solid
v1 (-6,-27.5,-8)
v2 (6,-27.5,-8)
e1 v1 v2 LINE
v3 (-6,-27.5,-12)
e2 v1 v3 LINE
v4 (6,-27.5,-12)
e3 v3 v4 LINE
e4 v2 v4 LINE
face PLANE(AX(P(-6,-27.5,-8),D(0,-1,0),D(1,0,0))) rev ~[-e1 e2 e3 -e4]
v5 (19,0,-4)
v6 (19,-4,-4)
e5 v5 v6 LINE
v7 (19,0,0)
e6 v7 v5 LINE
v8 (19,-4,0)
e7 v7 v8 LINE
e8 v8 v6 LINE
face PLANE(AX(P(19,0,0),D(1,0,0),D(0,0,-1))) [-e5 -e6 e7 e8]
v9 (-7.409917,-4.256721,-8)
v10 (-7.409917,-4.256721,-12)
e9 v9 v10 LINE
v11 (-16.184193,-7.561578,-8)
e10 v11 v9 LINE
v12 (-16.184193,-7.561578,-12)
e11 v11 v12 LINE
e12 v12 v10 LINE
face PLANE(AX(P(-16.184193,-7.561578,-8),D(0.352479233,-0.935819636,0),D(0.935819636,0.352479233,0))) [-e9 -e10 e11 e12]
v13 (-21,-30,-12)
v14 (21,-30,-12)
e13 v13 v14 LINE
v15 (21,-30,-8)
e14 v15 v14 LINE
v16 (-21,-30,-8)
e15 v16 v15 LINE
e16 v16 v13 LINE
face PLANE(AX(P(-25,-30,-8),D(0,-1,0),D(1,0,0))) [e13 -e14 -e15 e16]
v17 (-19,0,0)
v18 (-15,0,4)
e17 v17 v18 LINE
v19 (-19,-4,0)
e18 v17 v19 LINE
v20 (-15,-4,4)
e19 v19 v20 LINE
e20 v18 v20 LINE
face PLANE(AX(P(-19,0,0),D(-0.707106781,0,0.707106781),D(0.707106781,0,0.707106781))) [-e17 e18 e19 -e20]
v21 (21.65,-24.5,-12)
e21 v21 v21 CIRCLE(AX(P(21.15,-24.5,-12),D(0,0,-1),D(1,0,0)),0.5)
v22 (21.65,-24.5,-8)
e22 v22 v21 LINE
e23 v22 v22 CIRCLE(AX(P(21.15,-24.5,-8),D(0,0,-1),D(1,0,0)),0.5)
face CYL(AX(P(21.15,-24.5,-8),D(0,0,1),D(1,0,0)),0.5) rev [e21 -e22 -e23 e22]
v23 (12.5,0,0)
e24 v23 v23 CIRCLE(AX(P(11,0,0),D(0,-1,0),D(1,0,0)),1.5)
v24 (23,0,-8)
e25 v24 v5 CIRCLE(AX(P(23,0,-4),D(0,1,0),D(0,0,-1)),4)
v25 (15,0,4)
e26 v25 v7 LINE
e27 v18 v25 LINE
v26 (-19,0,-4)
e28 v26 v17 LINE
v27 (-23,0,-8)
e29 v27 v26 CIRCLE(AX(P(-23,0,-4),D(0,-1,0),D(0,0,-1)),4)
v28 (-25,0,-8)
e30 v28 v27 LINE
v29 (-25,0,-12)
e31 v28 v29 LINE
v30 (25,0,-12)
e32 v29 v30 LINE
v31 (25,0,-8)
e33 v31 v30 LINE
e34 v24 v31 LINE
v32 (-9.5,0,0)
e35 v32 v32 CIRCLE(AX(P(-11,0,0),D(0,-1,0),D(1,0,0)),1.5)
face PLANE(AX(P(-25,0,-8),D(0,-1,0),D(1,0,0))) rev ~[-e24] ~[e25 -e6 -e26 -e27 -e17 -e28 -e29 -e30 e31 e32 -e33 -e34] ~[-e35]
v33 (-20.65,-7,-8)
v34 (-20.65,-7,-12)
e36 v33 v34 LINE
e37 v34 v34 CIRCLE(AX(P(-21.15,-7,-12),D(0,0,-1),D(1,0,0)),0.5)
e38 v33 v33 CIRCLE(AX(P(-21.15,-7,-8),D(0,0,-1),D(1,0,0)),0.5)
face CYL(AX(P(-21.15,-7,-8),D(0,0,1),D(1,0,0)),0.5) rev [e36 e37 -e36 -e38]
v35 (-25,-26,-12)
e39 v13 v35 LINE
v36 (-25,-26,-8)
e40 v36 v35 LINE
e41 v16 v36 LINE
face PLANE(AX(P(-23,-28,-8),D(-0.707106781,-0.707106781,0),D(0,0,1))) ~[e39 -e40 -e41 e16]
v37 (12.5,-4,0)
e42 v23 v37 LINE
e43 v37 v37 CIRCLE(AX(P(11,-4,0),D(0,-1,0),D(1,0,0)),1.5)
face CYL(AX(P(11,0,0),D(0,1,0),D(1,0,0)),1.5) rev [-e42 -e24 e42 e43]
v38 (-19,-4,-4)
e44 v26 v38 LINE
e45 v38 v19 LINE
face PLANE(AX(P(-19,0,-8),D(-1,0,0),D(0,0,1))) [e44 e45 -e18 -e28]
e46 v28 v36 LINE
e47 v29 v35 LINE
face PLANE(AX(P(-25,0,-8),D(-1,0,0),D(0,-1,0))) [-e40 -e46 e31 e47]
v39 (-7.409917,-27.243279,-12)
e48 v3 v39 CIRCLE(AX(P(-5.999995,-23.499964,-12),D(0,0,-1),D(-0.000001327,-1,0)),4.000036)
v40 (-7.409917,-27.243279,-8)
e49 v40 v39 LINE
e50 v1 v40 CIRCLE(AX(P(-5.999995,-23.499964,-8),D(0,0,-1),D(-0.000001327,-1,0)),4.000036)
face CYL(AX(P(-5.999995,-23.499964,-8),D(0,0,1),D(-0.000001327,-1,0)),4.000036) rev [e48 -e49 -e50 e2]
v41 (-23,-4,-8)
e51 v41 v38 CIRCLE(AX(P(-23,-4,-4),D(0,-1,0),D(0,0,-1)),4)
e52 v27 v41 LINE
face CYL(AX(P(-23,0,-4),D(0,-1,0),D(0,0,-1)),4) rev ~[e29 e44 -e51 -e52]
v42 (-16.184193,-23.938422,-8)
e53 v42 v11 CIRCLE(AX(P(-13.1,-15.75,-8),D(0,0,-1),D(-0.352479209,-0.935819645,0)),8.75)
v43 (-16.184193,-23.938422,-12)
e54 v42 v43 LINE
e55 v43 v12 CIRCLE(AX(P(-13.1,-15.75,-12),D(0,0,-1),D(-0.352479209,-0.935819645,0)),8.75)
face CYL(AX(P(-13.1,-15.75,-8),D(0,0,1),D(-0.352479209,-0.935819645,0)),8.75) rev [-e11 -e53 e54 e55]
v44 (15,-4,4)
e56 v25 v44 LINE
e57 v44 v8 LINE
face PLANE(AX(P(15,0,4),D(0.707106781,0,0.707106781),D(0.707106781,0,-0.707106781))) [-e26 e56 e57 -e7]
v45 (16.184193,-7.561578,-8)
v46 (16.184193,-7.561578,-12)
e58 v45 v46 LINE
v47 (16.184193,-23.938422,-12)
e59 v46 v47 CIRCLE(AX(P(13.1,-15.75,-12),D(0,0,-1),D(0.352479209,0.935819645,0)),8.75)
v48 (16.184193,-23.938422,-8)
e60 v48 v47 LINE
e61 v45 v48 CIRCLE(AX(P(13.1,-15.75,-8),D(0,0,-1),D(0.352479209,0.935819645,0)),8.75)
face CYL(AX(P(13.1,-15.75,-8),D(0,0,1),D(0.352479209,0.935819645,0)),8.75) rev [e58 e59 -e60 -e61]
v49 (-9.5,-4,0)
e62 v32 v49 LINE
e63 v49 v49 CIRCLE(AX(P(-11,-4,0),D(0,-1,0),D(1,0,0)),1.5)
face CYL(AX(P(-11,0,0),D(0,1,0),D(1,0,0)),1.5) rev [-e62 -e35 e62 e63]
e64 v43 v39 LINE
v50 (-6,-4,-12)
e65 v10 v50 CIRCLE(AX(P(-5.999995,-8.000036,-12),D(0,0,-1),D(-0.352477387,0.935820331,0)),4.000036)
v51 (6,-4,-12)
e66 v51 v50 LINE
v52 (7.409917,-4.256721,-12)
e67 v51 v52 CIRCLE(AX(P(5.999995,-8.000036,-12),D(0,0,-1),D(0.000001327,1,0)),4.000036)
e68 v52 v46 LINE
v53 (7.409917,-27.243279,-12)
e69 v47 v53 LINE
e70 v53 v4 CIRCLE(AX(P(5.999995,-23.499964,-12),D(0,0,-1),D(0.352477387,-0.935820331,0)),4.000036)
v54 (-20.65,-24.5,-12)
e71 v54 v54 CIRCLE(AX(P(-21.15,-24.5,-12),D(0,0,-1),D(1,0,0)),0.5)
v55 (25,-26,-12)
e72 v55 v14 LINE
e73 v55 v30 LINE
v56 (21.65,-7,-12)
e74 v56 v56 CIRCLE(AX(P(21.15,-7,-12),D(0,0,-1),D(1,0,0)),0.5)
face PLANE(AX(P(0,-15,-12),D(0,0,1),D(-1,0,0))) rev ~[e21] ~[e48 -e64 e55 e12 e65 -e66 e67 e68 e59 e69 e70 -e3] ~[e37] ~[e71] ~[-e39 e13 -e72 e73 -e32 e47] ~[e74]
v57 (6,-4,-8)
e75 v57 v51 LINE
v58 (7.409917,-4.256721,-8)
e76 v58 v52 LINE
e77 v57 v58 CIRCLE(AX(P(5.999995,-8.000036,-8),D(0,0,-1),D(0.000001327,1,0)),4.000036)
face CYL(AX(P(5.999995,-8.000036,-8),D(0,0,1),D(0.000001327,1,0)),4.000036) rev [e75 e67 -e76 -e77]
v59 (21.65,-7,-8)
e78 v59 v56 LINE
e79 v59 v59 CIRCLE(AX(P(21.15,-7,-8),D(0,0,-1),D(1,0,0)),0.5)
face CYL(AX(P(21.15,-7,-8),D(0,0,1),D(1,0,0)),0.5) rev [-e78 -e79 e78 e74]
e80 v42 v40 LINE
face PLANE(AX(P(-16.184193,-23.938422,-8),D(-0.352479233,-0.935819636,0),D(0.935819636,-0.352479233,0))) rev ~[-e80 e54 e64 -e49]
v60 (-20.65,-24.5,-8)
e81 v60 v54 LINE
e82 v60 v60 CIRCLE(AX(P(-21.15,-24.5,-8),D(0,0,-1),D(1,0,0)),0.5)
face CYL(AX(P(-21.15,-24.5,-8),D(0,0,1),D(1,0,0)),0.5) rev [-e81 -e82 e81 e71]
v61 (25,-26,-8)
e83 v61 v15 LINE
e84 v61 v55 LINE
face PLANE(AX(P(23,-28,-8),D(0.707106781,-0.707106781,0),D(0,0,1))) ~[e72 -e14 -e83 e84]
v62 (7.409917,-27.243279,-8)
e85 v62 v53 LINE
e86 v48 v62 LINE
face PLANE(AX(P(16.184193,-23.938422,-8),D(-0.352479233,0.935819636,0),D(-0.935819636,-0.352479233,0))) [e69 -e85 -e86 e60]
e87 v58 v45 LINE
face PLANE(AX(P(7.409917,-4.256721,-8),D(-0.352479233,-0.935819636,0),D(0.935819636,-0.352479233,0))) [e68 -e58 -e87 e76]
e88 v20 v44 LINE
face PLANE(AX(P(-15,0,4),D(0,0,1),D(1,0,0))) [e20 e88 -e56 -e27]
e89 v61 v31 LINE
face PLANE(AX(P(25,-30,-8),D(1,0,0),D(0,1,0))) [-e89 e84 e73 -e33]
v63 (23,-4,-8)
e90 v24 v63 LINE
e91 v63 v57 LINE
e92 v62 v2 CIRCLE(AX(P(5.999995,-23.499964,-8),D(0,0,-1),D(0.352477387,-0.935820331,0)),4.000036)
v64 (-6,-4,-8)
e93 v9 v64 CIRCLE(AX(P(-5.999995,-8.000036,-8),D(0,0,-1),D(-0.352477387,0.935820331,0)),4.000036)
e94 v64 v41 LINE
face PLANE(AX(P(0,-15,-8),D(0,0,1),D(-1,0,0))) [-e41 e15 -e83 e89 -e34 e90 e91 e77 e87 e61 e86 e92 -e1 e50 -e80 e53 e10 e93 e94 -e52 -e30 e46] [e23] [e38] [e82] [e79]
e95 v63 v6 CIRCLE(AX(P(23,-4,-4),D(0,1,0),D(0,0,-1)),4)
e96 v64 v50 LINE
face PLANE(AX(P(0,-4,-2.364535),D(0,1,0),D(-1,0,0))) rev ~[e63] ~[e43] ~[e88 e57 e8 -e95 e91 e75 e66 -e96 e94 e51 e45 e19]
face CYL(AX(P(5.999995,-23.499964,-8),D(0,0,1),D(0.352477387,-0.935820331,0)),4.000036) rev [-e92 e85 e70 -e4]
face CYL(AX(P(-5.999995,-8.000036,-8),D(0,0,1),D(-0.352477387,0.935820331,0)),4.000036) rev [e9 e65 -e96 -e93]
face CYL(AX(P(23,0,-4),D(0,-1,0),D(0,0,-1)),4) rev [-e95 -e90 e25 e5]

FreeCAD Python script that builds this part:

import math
import FreeCAD as App
import Part
import Sketcher
Q = App.Units.Quantity


def edges_at(feature, points):
    """Names of the edges that pass closest to the given points."""
    edges = feature.Shape.Edges
    near = lambda p: min(range(len(edges)), key=lambda i: edges[i].distToShape(Part.Vertex(*p))[0])
    return sorted({f"Edge{near(p) + 1}" for p in points})

doc = App.newDocument("Part")
params = doc.addObject("Spreadsheet::Sheet", "Params")
for row, (alias, value) in enumerate([
    ("sketch1_diameter", "3 mm"),
    ("sketch1_width", "30 mm"),
    ("sketch1_width2", "38 mm"),
    ("sketch1_height", "8 mm"),
    ("pad1_length", "4 mm"),
    ("sketch2_diameter", "1 mm"),
    ("sketch2_width", "50 mm"),
    ("sketch2_width2", "12 mm"),
    ("sketch2_height", "30 mm"),
    ("sketch2_radius", "8.75 mm"),
    ("pad2_length", "4 mm"),
    ("fillet_radius", "4 mm"),
    ("chamfer_size", "4 mm"),
], start=1):
    params.set(f"A{row}", alias)
    params.set(f"B{row}", "=" + value)
    params.setAlias(f"B{row}", alias)

body = doc.addObject("PartDesign::Body", "Body")

# Sketch on XY plane
sketch1 = body.newObject("Sketcher::SketchObject", "Sketch")
sketch1.AttachmentSupport = (doc.getObject("XY_Plane"), [""])
sketch1.MapMode = "FlatFace"
sketch1.addGeometry(Part.LineSegment(App.Vector(15, 4, 0), App.Vector(-15, 4, 0)), False)
sketch1.addGeometry(Part.LineSegment(App.Vector(-15, 4, 0), App.Vector(-19, 0, 0)), False)
sketch1.addGeometry(Part.LineSegment(App.Vector(-19, 0, 0), App.Vector(-19, -8, 0)), False)
sketch1.addGeometry(Part.LineSegment(App.Vector(-19, -8, 0), App.Vector(19, -8, 0)), False)
sketch1.addGeometry(Part.LineSegment(App.Vector(19, -8, 0), App.Vector(19, 0, 0)), False)
sketch1.addGeometry(Part.LineSegment(App.Vector(19, 0, 0), App.Vector(15, 4, 0)), False)
sketch1.addGeometry(Part.Circle(App.Vector(11, 0, 0), App.Vector(0, 0, 1), 1.5), False)
sketch1.addGeometry(Part.Circle(App.Vector(-11, 0, 0), App.Vector(0, 0, 1), 1.5), False)
sketch1.addConstraint(Sketcher.Constraint("Coincident", 0, 2, 1, 1))
sketch1.addConstraint(Sketcher.Constraint("Coincident", 1, 2, 2, 1))
sketch1.addConstraint(Sketcher.Constraint("Coincident", 2, 2, 3, 1))
sketch1.addConstraint(Sketcher.Constraint("Coincident", 3, 2, 4, 1))
sketch1.addConstraint(Sketcher.Constraint("Coincident", 4, 2, 5, 1))
sketch1.addConstraint(Sketcher.Constraint("Coincident", 5, 2, 0, 1))
sketch1.addConstraint(Sketcher.Constraint("Horizontal", 0))
sketch1.addConstraint(Sketcher.Constraint("Vertical", 2))
sketch1.addConstraint(Sketcher.Constraint("Horizontal", 3))
sketch1.addConstraint(Sketcher.Constraint("Vertical", 4))
sketch1.addConstraint(Sketcher.Constraint("Equal", 6, 7))
sketch1.addConstraint(Sketcher.Constraint("Symmetric", 6, 3, 7, 3, -1, 1))
sketch1.addConstraint(Sketcher.Constraint("Symmetric", 1, 2, 4, 2, -1, 1))
sketch1.addConstraint(Sketcher.Constraint("PointOnObject", 6, 3, -1))
sketch1.addConstraint(Sketcher.Constraint("PointOnObject", 1, 2, -1))
sketch1.addConstraint(Sketcher.Constraint("Perpendicular", 1, 5))
sketch1.addConstraint(Sketcher.Constraint("Equal", 1, 5))
sketch1.addConstraint(Sketcher.Constraint("Diameter", 6, Q("3 mm")))
sketch1.addConstraint(Sketcher.Constraint("DistanceX", 0, 2, 0, 1, Q("30 mm")))
sketch1.addConstraint(Sketcher.Constraint("DistanceX", 3, 1, 3, 2, Q("38 mm")))
sketch1.addConstraint(Sketcher.Constraint("DistanceY", 2, 2, 2, 1, Q("8 mm")))
sketch1.addConstraint(Sketcher.Constraint("DistanceX", -1, 1, 6, 3, Q("11 mm")))
sketch1.setExpression("Constraints[17]", "Params.sketch1_diameter")
sketch1.setExpression("Constraints[18]", "Params.sketch1_width")
sketch1.setExpression("Constraints[19]", "Params.sketch1_width2")
sketch1.setExpression("Constraints[20]", "Params.sketch1_height")
pad1 = body.newObject("PartDesign::Pad", "Pad")
pad1.Profile = sketch1
pad1.setExpression("Length", "Params.pad1_length")

# Sketch on XZ plane
sketch2 = body.newObject("Sketcher::SketchObject", "Sketch001")
sketch2.AttachmentSupport = (doc.getObject("XZ_Plane"), [""])
sketch2.MapMode = "FlatFace"
sketch2.AttachmentOffset = App.Placement(App.Vector(0, 0, 8), App.Rotation())
sketch2.addGeometry(Part.LineSegment(App.Vector(25, 30, 0), App.Vector(-25, 30, 0)), False)
sketch2.addGeometry(Part.LineSegment(App.Vector(-25, 30, 0), App.Vector(-25, 0, 0)), False)
sketch2.addGeometry(Part.LineSegment(App.Vector(-25, 0, 0), App.Vector(25, 0, 0)), False)
sketch2.addGeometry(Part.LineSegment(App.Vector(25, 0, 0), App.Vector(25, 30, 0)), False)
sketch2.addGeometry(Part.Circle(App.Vector(21.15, 7, 0), App.Vector(0, 0, 1), 0.5), False)
sketch2.addGeometry(Part.Circle(App.Vector(-21.15, 7, 0), App.Vector(0, 0, 1), 0.5), False)
sketch2.addGeometry(Part.Circle(App.Vector(21.15, 24.5, 0), App.Vector(0, 0, 1), 0.5), False)
sketch2.addGeometry(Part.LineSegment(App.Vector(-16.184193, 23.938422, 0), App.Vector(-7.409917, 27.243279, 0)), False)
sketch2.addGeometry(Part.ArcOfCircle(Part.Circle(App.Vector(-5.999995, 23.499964, 0), App.Vector(0, 0, 1), 4.000036), math.radians(90.000076), math.radians(110.638918)), False)
sketch2.addGeometry(Part.LineSegment(App.Vector(-6, 27.5, 0), App.Vector(6, 27.5, 0)), False)
sketch2.addGeometry(Part.ArcOfCircle(Part.Circle(App.Vector(5.999995, 23.499964, 0), App.Vector(0, 0, 1), 4.000036), math.radians(69.361082), math.radians(89.999924)), False)
sketch2.addGeometry(Part.LineSegment(App.Vector(7.409917, 27.243279, 0), App.Vector(16.184193, 23.938422, 0)), False)
sketch2.addGeometry(Part.ArcOfCircle(Part.Circle(App.Vector(13.1, 15.75, 0), App.Vector(0, 0, 1), 8.75), math.radians(-69.36097), math.radians(69.36097)), False)
sketch2.addGeometry(Part.LineSegment(App.Vector(16.184193, 7.561578, 0), App.Vector(7.409917, 4.256721, 0)), False)
sketch2.addGeometry(Part.ArcOfCircle(Part.Circle(App.Vector(5.999995, 8.000036, 0), App.Vector(0, 0, 1), 4.000036), math.radians(-89.999924), math.radians(-69.361082)), False)
sketch2.addGeometry(Part.LineSegment(App.Vector(6, 4, 0), App.Vector(-6, 4, 0)), False)
sketch2.addGeometry(Part.ArcOfCircle(Part.Circle(App.Vector(-5.999995, 8.000036, 0), App.Vector(0, 0, 1), 4.000036), math.radians(-110.638918), math.radians(-90.000076)), False)
sketch2.addGeometry(Part.LineSegment(App.Vector(-7.409917, 4.256721, 0), App.Vector(-16.184193, 7.561578, 0)), False)
sketch2.addGeometry(Part.ArcOfCircle(Part.Circle(App.Vector(-13.1, 15.75, 0), App.Vector(0, 0, 1), 8.75), math.radians(110.63903), math.radians(249.36097)), False)
sketch2.addGeometry(Part.Circle(App.Vector(-21.15, 24.5, 0), App.Vector(0, 0, 1), 0.5), False)
sketch2.addConstraint(Sketcher.Constraint("Coincident", 0, 2, 1, 1))
sketch2.addConstraint(Sketcher.Constraint("Coincident", 1, 2, 2, 1))
sketch2.addConstraint(Sketcher.Constraint("Coincident", 2, 2, 3, 1))
sketch2.addConstraint(Sketcher.Constraint("Coincident", 3, 2, 0, 1))
sketch2.addConstraint(Sketcher.Constraint("Tangent", 7, 2, 8, 2))
sketch2.addConstraint(Sketcher.Constraint("Tangent", 8, 1, 9, 1))
sketch2.addConstraint(Sketcher.Constraint("Tangent", 9, 2, 10, 2))
sketch2.addConstraint(Sketcher.Constraint("Tangent", 10, 1, 11, 1))
sketch2.addConstraint(Sketcher.Constraint("Tangent", 11, 2, 12, 2))
sketch2.addConstraint(Sketcher.Constraint("Tangent", 12, 1, 13, 1))
sketch2.addConstraint(Sketcher.Constraint("Tangent", 13, 2, 14, 2))
sketch2.addConstraint(Sketcher.Constraint("Tangent", 14, 1, 15, 1))
sketch2.addConstraint(Sketcher.Constraint("Tangent", 15, 2, 16, 2))
sketch2.addConstraint(Sketcher.Constraint("Tangent", 16, 1, 17, 1))
sketch2.addConstraint(Sketcher.Constraint("Tangent", 17, 2, 18, 2))
sketch2.addConstraint(Sketcher.Constraint("Tangent", 18, 1, 7, 1))
sketch2.addConstraint(Sketcher.Constraint("Horizontal", 0))
sketch2.addConstraint(Sketcher.Constraint("Vertical", 1))
sketch2.addConstraint(Sketcher.Constraint("Horizontal", 2))
sketch2.addConstraint(Sketcher.Constraint("Vertical", 3))
sketch2.addConstraint(Sketcher.Constraint("Horizontal", 9))
sketch2.addConstraint(Sketcher.Constraint("Horizontal", 15))
sketch2.addConstraint(Sketcher.Constraint("Equal", 4, 5))
sketch2.addConstraint(Sketcher.Constraint("Equal", 5, 6))
sketch2.addConstraint(Sketcher.Constraint("Equal", 8, 10))
sketch2.addConstraint(Sketcher.Constraint("Equal", 10, 14))
sketch2.addConstraint(Sketcher.Constraint("Equal", 14, 16))
sketch2.addConstraint(Sketcher.Constraint("Equal", 12, 18))
sketch2.addConstraint(Sketcher.Constraint("Equal", 6, 19))
sketch2.addConstraint(Sketcher.Constraint("Symmetric", 1, 2, 2, 2, -1, 1))
sketch2.addConstraint(Sketcher.Constraint("Symmetric", 4, 3, 5, 3, -2))
sketch2.addConstraint(Sketcher.Constraint("Symmetric", 12, 3, 18, 3, -2))
sketch2.addConstraint(Sketcher.Constraint("Symmetric", 6, 3, 19, 3, -2))
sketch2.addConstraint(Sketcher.Constraint("Parallel", 7, 13))
sketch2.addConstraint(Sketcher.Constraint("Parallel", 11, 17))
sketch2.addConstraint(Sketcher.Constraint("Horizontal", 7, 2, 10, 1))
sketch2.addConstraint(Sketcher.Constraint("Vertical", 4, 3, 6, 3))
sketch2.addConstraint(Sketcher.Constraint("Vertical", 10, 3, 14, 3))
sketch2.addConstraint(Sketcher.Constraint("Diameter", 4, Q("1 mm")))
sketch2.addConstraint(Sketcher.Constraint("DistanceX", 0, 2, 0, 1, Q("50 mm")))
sketch2.addConstraint(Sketcher.Constraint("DistanceX", 9, 1, 9, 2, Q("12 mm")))
sketch2.addConstraint(Sketcher.Constraint("DistanceY", 1, 2, 1, 1, Q("30 mm")))
sketch2.addConstraint(Sketcher.Constraint("Radius", 12, Q("8.75 mm")))
sketch2.addConstraint(Sketcher.Constraint("DistanceY", -1, 1, 4, 3, Q("7 mm")))
sketch2.addConstraint(Sketcher.Constraint("DistanceY", -1, 1, 14, 1, Q("4 mm")))
sketch2.addConstraint(Sketcher.Constraint("DistanceY", 19, 3, 8, 1, Q("3 mm")))
sketch2.addConstraint(Sketcher.Constraint("DistanceY", -1, 1, 6, 3, Q("24.5 mm")))
sketch2.addConstraint(Sketcher.Constraint("DistanceX", -1, 1, 12, 3, Q("13.1 mm")))
sketch2.addConstraint(Sketcher.Constraint("DistanceX", 5, 3, 4, 3, Q("42.3 mm")))
sketch2.addConstraint(Sketcher.Constraint("Radius", 8, Q("4.000036 mm")))
sketch2.setExpression("Constraints[38]", "Params.sketch2_diameter")
sketch2.setExpression("Constraints[39]", "Params.sketch2_width")
sketch2.setExpression("Constraints[40]", "Params.sketch2_width2")
sketch2.setExpression("Constraints[41]", "Params.sketch2_height")
sketch2.setExpression("Constraints[42]", "Params.sketch2_radius")
pad2 = body.newObject("PartDesign::Pad", "Pad001")
pad2.Profile = sketch2
pad2.setExpression("Length", "Params.pad2_length")
doc.recompute()

fillet = body.newObject("PartDesign::Fillet", "Fillet")
fillet.Base = (pad2, edges_at(pad2, [(19, -8, 2), (-19, -8, 2)]))
fillet.setExpression("Radius", "Params.fillet_radius")
doc.recompute()

chamfer = body.newObject("PartDesign::Chamfer", "Chamfer")
chamfer.Base = (fillet, edges_at(fillet, [(-25, -10, 30), (25, -10, 30)]))
chamfer.setExpression("Size", "Params.chamfer_size")
body2 = doc.addObject("PartDesign::Body", "Body001")
doc.recompute()

body.Placement = App.Placement(App.Vector(0, 0, 0), App.Rotation(App.Vector(1, 0, 0), 90))
boolean = body2.newObject("PartDesign::Boolean", "Boolean")
boolean.Type = "Fuse"
boolean.addObjects([body])

doc.recompute()
